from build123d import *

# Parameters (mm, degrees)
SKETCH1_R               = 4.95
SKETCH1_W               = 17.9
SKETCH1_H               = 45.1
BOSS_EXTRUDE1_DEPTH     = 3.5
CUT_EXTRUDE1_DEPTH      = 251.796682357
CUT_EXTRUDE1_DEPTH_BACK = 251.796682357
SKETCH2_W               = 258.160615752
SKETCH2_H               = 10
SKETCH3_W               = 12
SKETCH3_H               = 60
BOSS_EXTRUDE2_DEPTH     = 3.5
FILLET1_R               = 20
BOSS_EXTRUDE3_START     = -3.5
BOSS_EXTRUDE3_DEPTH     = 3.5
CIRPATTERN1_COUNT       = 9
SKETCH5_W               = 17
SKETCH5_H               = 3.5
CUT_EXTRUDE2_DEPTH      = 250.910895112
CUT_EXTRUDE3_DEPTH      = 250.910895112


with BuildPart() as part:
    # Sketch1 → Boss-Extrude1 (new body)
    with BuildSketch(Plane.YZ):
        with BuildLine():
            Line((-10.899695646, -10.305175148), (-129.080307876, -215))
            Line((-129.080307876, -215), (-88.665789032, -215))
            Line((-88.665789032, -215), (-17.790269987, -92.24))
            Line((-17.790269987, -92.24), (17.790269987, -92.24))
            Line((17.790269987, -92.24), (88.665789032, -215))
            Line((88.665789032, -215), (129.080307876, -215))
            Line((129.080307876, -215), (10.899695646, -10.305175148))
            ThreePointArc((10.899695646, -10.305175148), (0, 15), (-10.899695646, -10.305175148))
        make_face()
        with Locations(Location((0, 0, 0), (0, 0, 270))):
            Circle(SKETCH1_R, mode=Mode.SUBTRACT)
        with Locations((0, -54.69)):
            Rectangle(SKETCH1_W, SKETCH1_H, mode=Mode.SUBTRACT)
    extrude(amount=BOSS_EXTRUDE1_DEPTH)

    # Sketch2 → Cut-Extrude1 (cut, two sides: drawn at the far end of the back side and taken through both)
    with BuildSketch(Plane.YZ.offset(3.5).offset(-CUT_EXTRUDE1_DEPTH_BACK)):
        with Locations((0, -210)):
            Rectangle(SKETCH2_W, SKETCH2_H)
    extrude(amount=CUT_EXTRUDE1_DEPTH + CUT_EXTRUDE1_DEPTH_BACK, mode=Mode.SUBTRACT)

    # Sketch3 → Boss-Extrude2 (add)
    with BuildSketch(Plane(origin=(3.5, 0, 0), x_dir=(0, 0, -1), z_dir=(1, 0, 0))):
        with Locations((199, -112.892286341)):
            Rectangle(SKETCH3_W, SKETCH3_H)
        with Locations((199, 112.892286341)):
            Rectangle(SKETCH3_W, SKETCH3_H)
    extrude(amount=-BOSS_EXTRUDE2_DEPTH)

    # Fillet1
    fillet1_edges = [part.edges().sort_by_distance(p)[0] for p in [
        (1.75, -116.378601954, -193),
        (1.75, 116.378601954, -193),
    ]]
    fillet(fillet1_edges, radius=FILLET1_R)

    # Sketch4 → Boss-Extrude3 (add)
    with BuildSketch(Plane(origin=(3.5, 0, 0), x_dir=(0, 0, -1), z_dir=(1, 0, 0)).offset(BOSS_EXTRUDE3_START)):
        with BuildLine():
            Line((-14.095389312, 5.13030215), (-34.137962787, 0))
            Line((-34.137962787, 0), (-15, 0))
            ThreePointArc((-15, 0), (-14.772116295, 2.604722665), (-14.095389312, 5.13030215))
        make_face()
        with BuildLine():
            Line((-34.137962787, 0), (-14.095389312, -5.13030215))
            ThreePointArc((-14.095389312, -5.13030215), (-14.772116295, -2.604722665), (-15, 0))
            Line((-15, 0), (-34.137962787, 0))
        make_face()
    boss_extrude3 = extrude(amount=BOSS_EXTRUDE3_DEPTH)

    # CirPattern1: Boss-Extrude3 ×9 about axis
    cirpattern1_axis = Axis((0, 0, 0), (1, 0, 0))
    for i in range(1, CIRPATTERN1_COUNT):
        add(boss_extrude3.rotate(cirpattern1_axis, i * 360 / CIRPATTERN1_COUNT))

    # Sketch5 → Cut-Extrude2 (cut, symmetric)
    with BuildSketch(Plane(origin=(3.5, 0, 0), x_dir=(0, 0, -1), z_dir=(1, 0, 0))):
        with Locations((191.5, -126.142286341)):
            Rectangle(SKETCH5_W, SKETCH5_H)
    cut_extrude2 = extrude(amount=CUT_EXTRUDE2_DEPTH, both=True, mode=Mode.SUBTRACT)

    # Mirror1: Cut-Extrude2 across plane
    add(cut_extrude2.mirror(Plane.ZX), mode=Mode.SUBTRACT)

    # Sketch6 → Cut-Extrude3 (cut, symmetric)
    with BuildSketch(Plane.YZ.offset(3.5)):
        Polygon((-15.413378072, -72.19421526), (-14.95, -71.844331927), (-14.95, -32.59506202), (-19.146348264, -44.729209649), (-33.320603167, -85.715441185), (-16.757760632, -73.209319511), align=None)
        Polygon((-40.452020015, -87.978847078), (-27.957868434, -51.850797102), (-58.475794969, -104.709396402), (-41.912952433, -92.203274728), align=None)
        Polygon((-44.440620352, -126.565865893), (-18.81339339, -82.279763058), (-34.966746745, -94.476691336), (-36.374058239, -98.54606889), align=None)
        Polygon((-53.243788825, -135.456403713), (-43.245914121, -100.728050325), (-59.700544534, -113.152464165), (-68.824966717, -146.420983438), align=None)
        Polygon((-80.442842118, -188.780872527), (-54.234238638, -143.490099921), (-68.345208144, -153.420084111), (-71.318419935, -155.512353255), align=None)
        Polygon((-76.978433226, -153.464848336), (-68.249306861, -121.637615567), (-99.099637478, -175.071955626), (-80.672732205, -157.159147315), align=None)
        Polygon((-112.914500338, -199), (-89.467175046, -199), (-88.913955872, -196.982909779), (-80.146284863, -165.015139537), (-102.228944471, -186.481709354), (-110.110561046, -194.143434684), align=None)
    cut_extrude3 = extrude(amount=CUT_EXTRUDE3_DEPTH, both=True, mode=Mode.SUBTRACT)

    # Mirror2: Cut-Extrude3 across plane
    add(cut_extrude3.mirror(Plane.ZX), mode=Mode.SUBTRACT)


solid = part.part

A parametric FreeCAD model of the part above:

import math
import FreeCAD as App
import Part
import Sketcher
from FreeCAD import Vector
Q = App.Units.Quantity


def edges_at(feature, points):
    """Names of the edges that pass closest to the given points."""
    edges = feature.Shape.Edges
    near = lambda p: min(range(len(edges)), key=lambda i: edges[i].distToShape(Part.Vertex(*p))[0])
    return sorted({f"Edge{near(p) + 1}" for p in points})


def add_polygon(sketch, points):
    """Adds a closed chain of lines whose ends are joined by coincident constraints."""
    first, n = sketch.GeometryCount, len(points)
    for a, b in zip(points, points[1:] + points[:1]):
        sketch.addGeometry(Part.LineSegment(App.Vector(*a, 0), App.Vector(*b, 0)), False)
    for i in range(n):
        sketch.addConstraint(Sketcher.Constraint("Coincident", first + i, 2, first + (i + 1) % n, 1))

doc = App.newDocument("Part")
body = doc.addObject("PartDesign::Body", "Body")

# Sketch on YZ plane
sketch1 = body.newObject("Sketcher::SketchObject", "Sketch")
sketch1.AttachmentSupport = (doc.getObject("YZ_Plane"), [""])
sketch1.MapMode = "FlatFace"
sketch1.addGeometry(Part.LineSegment(Vector(-10.9, -10.3, 0), Vector(-129.1, -215, 0)), False)  # 0
sketch1.addGeometry(Part.LineSegment(Vector(-129.1, -215, 0), Vector(-88.7, -215, 0)), False)  # 1
sketch1.addGeometry(Part.LineSegment(Vector(-88.7, -215, 0), Vector(-17.8, -92.2, 0)), False)  # 2
sketch1.addGeometry(Part.LineSegment(Vector(-17.8, -92.2, 0), Vector(17.8, -92.2, 0)), False)  # 3
sketch1.addGeometry(Part.LineSegment(Vector(17.8, -92.2, 0), Vector(88.7, -215, 0)), False)  # 4
sketch1.addGeometry(Part.LineSegment(Vector(88.7, -215, 0), Vector(129.1, -215, 0)), False)  # 5
sketch1.addGeometry(Part.LineSegment(Vector(129.1, -215, 0), Vector(10.9, -10.3, 0)), False)  # 6
sketch1.addGeometry(Part.ArcOfCircle(Part.Circle(Vector(0, 0, 0), Vector(0, 0, 1), 15), math.radians(-43), math.radians(223)), False)  # 7
add_polygon(sketch1, [(8.9, -77.2), (-8.9, -77.2), (-8.9, -32.1), (8.9, -32.1)])  # lines 8-11
sketch1.addGeometry(Part.Circle(Vector(0, 0, 0), Vector(0, 0, 1), 5), False)  # 12
sketch1.addConstraint([
    Sketcher.Constraint("Coincident", 0, 2, 1, 1),
    Sketcher.Constraint("Coincident", 1, 2, 2, 1),
    Sketcher.Constraint("Coincident", 2, 2, 3, 1),
    Sketcher.Constraint("Coincident", 3, 2, 4, 1),
    Sketcher.Constraint("Coincident", 4, 2, 5, 1),
    Sketcher.Constraint("Coincident", 5, 2, 6, 1),
    Sketcher.Constraint("Coincident", 6, 2, 7, 1),
    Sketcher.Constraint("Coincident", 7, 2, 0, 1),
    Sketcher.Constraint("Horizontal", 1),
    Sketcher.Constraint("Horizontal", 3),
    Sketcher.Constraint("Horizontal", 5),
    Sketcher.Constraint("Horizontal", 8),
    Sketcher.Constraint("Vertical", 9),
    Sketcher.Constraint("Horizontal", 10),
    Sketcher.Constraint("Vertical", 11),
    Sketcher.Constraint("Coincident", 7, 3, -1, 1),
    Sketcher.Constraint("Coincident", 12, 3, -1, 1),
    Sketcher.Constraint("Symmetric", 1, 2, 4, 2, -2),
    Sketcher.Constraint("Parallel", 0, 2),
    Sketcher.Constraint("Parallel", 4, 6),
    Sketcher.Constraint("Horizontal", 6, 2, 7, 2),
    Sketcher.Constraint("Equal", 1, 5),
    Sketcher.Constraint("Radius", 7, Q("15 mm")),
    Sketcher.Constraint("Diameter", 12, Q("9.9 mm")),
    Sketcher.Constraint("Angle", 0, Q("-120 deg")),
    Sketcher.Constraint("DistanceX", 8, 2, 8, 1, Q("17.9 mm")),
    Sketcher.Constraint("DistanceY", 9, 1, 9, 2, Q("45.1 mm")),
    Sketcher.Constraint("DistanceY", 0, 2, -1, 1, Q("215 mm")),
    Sketcher.Constraint("DistanceY", 2, 2, 8, 2, Q("15 mm")),
    Sketcher.Constraint("DistanceY", 2, 2, -1, 1, Q("92.24 mm")),
    Sketcher.Constraint("DistanceX", 8, 2, -1, 1, Q("8.95 mm")),
    Sketcher.Constraint("DistanceX", 1, 1, 1, 2, Q("40.414519 mm")),
    Sketcher.Constraint("DistanceX", 3, 1, 3, 2, Q("35.58054 mm")),
])
pad1 = body.newObject("PartDesign::Pad", "Pad")
pad1.Profile = sketch1
pad1.Length = 3.5

# Sketch on YZ plane
sketch2 = body.newObject("Sketcher::SketchObject", "Sketch001")
sketch2.AttachmentSupport = (doc.getObject("YZ_Plane"), [""])
sketch2.MapMode = "FlatFace"
sketch2.AttachmentOffset = App.Placement(Vector(0, 0, 3.5), App.Rotation())
add_polygon(sketch2, [(-129, -205), (-129, -215), (129, -215), (129, -205)])  # lines 0-3
sketch2.addConstraint([
    Sketcher.Constraint("Vertical", 0),
    Sketcher.Constraint("Horizontal", 1),
    Sketcher.Constraint("Vertical", 2),
    Sketcher.Constraint("Horizontal", 3),
    Sketcher.Constraint("DistanceY", 0, 2, 0, 1, Q("10 mm")),
    Sketcher.Constraint("DistanceY", 0, 2, -1, 1, Q("215 mm")),
    Sketcher.Constraint("DistanceX", 1, 1, 1, 2, Q("258.160616 mm")),
    Sketcher.Constraint("DistanceX", 0, 2, -1, 1, Q("129.080308 mm")),
])
pocket1 = body.newObject("PartDesign::Pocket", "Pocket")
pocket1.Profile = sketch2
pocket1.Type = "ThroughAll"
pocket1.Midplane = True

# Sketch on YZ plane
sketch3 = body.newObject("Sketcher::SketchObject", "Sketch002")
sketch3.AttachmentSupport = (doc.getObject("YZ_Plane"), [""])
sketch3.MapMode = "FlatFace"
sketch3.AttachmentOffset = App.Placement(Vector(0, 0, 3.5), App.Rotation())
add_polygon(sketch3, [(-83, -193), (-143, -193), (-143, -205), (-83, -205)])  # lines 0-3
add_polygon(sketch3, [(143, -193), (83, -193), (83, -205), (143, -205)])  # lines 4-7
sketch3.addConstraint([
    Sketcher.Constraint("Horizontal", 0),
    Sketcher.Constraint("Vertical", 1),
    Sketcher.Constraint("Horizontal", 2),
    Sketcher.Constraint("Vertical", 3),
    Sketcher.Constraint("Horizontal", 4),
    Sketcher.Constraint("Vertical", 5),
    Sketcher.Constraint("Horizontal", 6),
    Sketcher.Constraint("Vertical", 7),
    Sketcher.Constraint("Symmetric", 3, 2, 4, 2, -2),
    Sketcher.Constraint("Symmetric", 1, 2, 6, 2, -2),
    Sketcher.Constraint("DistanceX", 0, 2, 0, 1, Q("60 mm")),
    Sketcher.Constraint("DistanceY", 1, 2, 1, 1, Q("12 mm")),
    Sketcher.Constraint("DistanceY", 0, 2, -1, 1, Q("193 mm")),
    Sketcher.Constraint("DistanceX", 0, 2, -1, 1, Q("142.892286 mm")),
])
pad2 = body.newObject("PartDesign::Pad", "Pad001")
pad2.Profile = sketch3
pad2.Length = 3.5
pad2.Reversed = True
doc.recompute()

fillet = body.newObject("PartDesign::Fillet", "Fillet")
fillet.Base = (pad2, edges_at(pad2, [(1.75, -116.379, -193), (1.75, 116.379, -193)]))
fillet.Radius = 20

# Sketch on YZ plane
sketch4 = body.newObject("Sketcher::SketchObject", "Sketch003")
sketch4.AttachmentSupport = (doc.getObject("YZ_Plane"), [""])
sketch4.MapMode = "FlatFace"
sketch4.addGeometry([
    Part.LineSegment(Vector(5, 14, 0), Vector(0, 34, 0)),
    Part.LineSegment(Vector(0, 34, 0), Vector(-5, 14, 0)),
    Part.ArcOfCircle(Part.Circle(Vector(0, 0, 0), Vector(0, 0, 1), 15), math.radians(90), math.radians(110)),
    Part.ArcOfCircle(Part.Circle(Vector(0, 0, 0), Vector(0, 0, 1), 15), math.radians(70), math.radians(90)),
], False)
sketch4.addConstraint([
    Sketcher.Constraint("Coincident", 0, 2, 1, 1),
    Sketcher.Constraint("Coincident", 1, 2, 2, 2),
    Sketcher.Constraint("Tangent", 2, 1, 3, 2),
    Sketcher.Constraint("Coincident", 3, 1, 0, 1),
    Sketcher.Constraint("Coincident", 2, 3, -1, 1),
    Sketcher.Constraint("Equal", 2, 3),
    Sketcher.Constraint("PointOnObject", 0, 2, -2),
    Sketcher.Constraint("PointOnObject", 2, 1, -2),
    Sketcher.Constraint("Horizontal", 1, 2, 3, 1),
    Sketcher.Constraint("Radius", 2, Q("15 mm")),
    Sketcher.Constraint("Distance", 0, Q("20.688759 mm")),
    Sketcher.Constraint("DistanceY", -1, 1, 1, 2, Q("14.095389 mm")),
])
pad3 = body.newObject("PartDesign::Pad", "Pad002")
pad3.Profile = sketch4
pad3.Length = 3.5
doc.recompute()

polarpattern = body.newObject("PartDesign::PolarPattern", "PolarPattern")
polarpattern.Originals = [pad3]
polarpattern.Axis = (doc.getObject("X_Axis"), [""])
polarpattern.Angle = 360
polarpattern.Occurrences = 9
body.Tip = polarpattern

# Sketch on YZ plane
sketch5 = body.newObject("Sketcher::SketchObject", "Sketch004")
sketch5.AttachmentSupport = (doc.getObject("YZ_Plane"), [""])
sketch5.MapMode = "FlatFace"
sketch5.AttachmentOffset = App.Placement(Vector(0, 0, 3.5), App.Rotation())
add_polygon(sketch5, [(-124.4, -183), (-127.9, -183), (-127.9, -200), (-124.4, -200)])  # lines 0-3
sketch5.addConstraint([
    Sketcher.Constraint("Horizontal", 0),
    Sketcher.Constraint("Vertical", 1),
    Sketcher.Constraint("Horizontal", 2),
    Sketcher.Constraint("Vertical", 3),
    Sketcher.Constraint("DistanceY", 1, 2, 1, 1, Q("17 mm")),
    Sketcher.Constraint("DistanceX", 0, 2, 0, 1, Q("3.5 mm")),
    Sketcher.Constraint("DistanceY", 0, 2, -1, 1, Q("183 mm")),
    Sketcher.Constraint("DistanceX", 0, 2, -1, 1, Q("127.892286 mm")),
])
pocket2 = body.newObject("PartDesign::Pocket", "Pocket001")
pocket2.Profile = sketch5
pocket2.Length = 501.82179
pocket2.Midplane = True
doc.recompute()

mirrored = body.newObject("PartDesign::Mirrored", "Mirrored")
mirrored.Originals = [pocket2]
mirrored.MirrorPlane = (doc.getObject("XZ_Plane"), [""])
body.Tip = mirrored

# Sketch on YZ plane
sketch6 = body.newObject("Sketcher::SketchObject", "Sketch005")
sketch6.AttachmentSupport = (doc.getObject("YZ_Plane"), [""])
sketch6.MapMode = "FlatFace"
sketch6.AttachmentOffset = App.Placement(Vector(0, 0, 3.5), App.Rotation())
add_polygon(sketch6, [(-15.4, -72.2), (-14.9, -71.8), (-14.9, -32.6), (-19.1, -44.7), (-33.3, -85.7), (-16.8, -73.2)])  # lines 0-5
add_polygon(sketch6, [(-40.5, -88), (-28, -51.9), (-58.5, -104.7), (-41.9, -92.2)])  # lines 6-9
add_polygon(sketch6, [(-44.4, -126.6), (-18.8, -82.3), (-35, -94.5), (-36.4, -98.5)])  # lines 10-13
add_polygon(sketch6, [(-53.2, -135.5), (-43.2, -100.7), (-59.7, -113.2), (-68.8, -146.4)])  # lines 14-17
add_polygon(sketch6, [(-80.4, -188.8), (-54.2, -143.5), (-68.3, -153.4), (-71.3, -155.5)])  # lines 18-21
add_polygon(sketch6, [(-77, -153.5), (-68.2, -121.6), (-99.1, -175.1), (-80.7, -157.2)])  # lines 22-25
add_polygon(sketch6, [(-112.9, -199), (-89.5, -199), (-88.9, -197), (-80.1, -165), (-102.2, -186.5), (-110.1, -194.1)])  # lines 26-31
sketch6.addConstraint([
    Sketcher.Constraint("Vertical", 1),
    Sketcher.Constraint("Horizontal", 26),
    Sketcher.Constraint("Parallel", 2, 3),
    Sketcher.Constraint("Parallel", 0, 4),
    Sketcher.Constraint("Parallel", 4, 5),
    Sketcher.Constraint("Parallel", 3, 6),
    Sketcher.Constraint("Parallel", 5, 8),
    Sketcher.Constraint("Parallel", 6, 9),
    Sketcher.Constraint("Parallel", 8, 11),
    Sketcher.Constraint("Parallel", 9, 12),
    Sketcher.Constraint("Parallel", 13, 14),
    Sketcher.Constraint("Parallel", 11, 15),
    Sketcher.Constraint("Parallel", 10, 18),
    Sketcher.Constraint("Parallel", 17, 19),
    Sketcher.Constraint("Parallel", 19, 20),
    Sketcher.Constraint("Parallel", 16, 21),
    Sketcher.Constraint("Parallel", 21, 22),
    Sketcher.Constraint("Parallel", 7, 23),
    Sketcher.Constraint("Parallel", 22, 27),
    Sketcher.Constraint("Parallel", 27, 28),
    Sketcher.Constraint("Parallel", 24, 29),
    Sketcher.Constraint("Parallel", 29, 30),
    Sketcher.Constraint("Parallel", 23, 31),
    Sketcher.Constraint("Equal", 4, 8),
    Sketcher.Constraint("Equal", 16, 21),
    Sketcher.Constraint("Angle", 7, Q("-120 deg")),
    Sketcher.Constraint("Angle", 25, Q("45 deg")),
    Sketcher.Constraint("DistanceY", 26, 2, -1, 1, Q("199 mm")),
    Sketcher.Constraint("DistanceX", 0, 2, -1, 1, Q("14.95 mm")),
    Sketcher.Constraint("Distance", 20, Q("3.635599 mm")),
    Sketcher.Constraint("DistanceY", 1, 1, 1, 2, Q("39.24927 mm")),
    Sketcher.Constraint("DistanceY", 18, 2, -1, 1, Q("143.4901 mm")),
    Sketcher.Constraint("DistanceX", 31, 2, -1, 1, Q("112.9145 mm")),
    Sketcher.Constraint("DistanceY", 7, 2, 6, 2, Q("52.858599 mm")),
    Sketcher.Constraint("DistanceX", 13, 2, 9, 2, Q("3.9886 mm")),
    Sketcher.Constraint("DistanceY", 13, 2, 15, 2, Q("13.413402 mm")),
    Sketcher.Constraint("DistanceY", 19, 2, 16, 2, Q("6.999101 mm")),
    Sketcher.Constraint("DistanceX", 20, 2, 13, 2, Q("26.8778 mm")),
    Sketcher.Constraint("DistanceX", 23, 2, 18, 2, Q("44.865399 mm")),
    Sketcher.Constraint("DistanceX", 24, 2, 25, 2, Q("3.694299 mm")),
    Sketcher.Constraint("DistanceY", 27, 2, 29, 2, Q("10.5012 mm")),
    Sketcher.Constraint("Distance", 2, Q("12.839271 mm")),
    Sketcher.Constraint("Distance", 3, Q("43.367968 mm")),
    Sketcher.Constraint("Distance", 9, Q("4.469912 mm")),
    Sketcher.Constraint("Distance", 10, Q("51.166529 mm")),
    Sketcher.Constraint("Distance", 12, Q("4.305852 mm")),
    Sketcher.Constraint("Distance", 13, Q("29.15782 mm")),
    Sketcher.Constraint("Distance", 15, Q("20.618461 mm")),
    Sketcher.Constraint("Distance", 17, Q("19.052431 mm")),
    Sketcher.Constraint("Distance", 19, Q("17.254682 mm")),
    Sketcher.Constraint("Distance", 22, Q("33.002582 mm")),
    Sketcher.Constraint("Distance", 23, Q("61.700661 mm")),
    Sketcher.Constraint("Distance", 24, Q("25.698629 mm")),
    Sketcher.Constraint("Distance", 27, Q("2.091579 mm")),
    Sketcher.Constraint("Distance", 28, Q("33.148309 mm")),
    Sketcher.Constraint("Distance", 31, Q("5.607879 mm")),
    Sketcher.Constraint("DistanceY", 0, 2, -1, 1, Q("71.844332 mm")),
    Sketcher.Constraint("DistanceX", 2, 2, -1, 1, Q("19.146348 mm")),
    Sketcher.Constraint("DistanceX", 5, 2, -1, 1, Q("15.413378 mm")),
    Sketcher.Constraint("DistanceX", 6, 2, -1, 1, Q("27.957868 mm")),
    Sketcher.Constraint("DistanceY", 11, 2, -1, 1, Q("94.476691 mm")),
    Sketcher.Constraint("DistanceX", 17, 2, -1, 1, Q("53.243789 mm")),
    Sketcher.Constraint("DistanceY", 25, 2, -1, 1, Q("153.464848 mm")),
    Sketcher.Constraint("DistanceY", 5, 2, 6, 2, Q("20.343418 mm")),
])
pocket3 = body.newObject("PartDesign::Pocket", "Pocket002")
pocket3.Profile = sketch6
pocket3.Length = 501.82179
pocket3.Midplane = True
doc.recompute()

mirrored2 = body.newObject("PartDesign::Mirrored", "Mirrored001")
mirrored2.Originals = [pocket3]
mirrored2.MirrorPlane = (doc.getObject("XZ_Plane"), [""])
body.Tip = mirrored2

doc.recompute()
